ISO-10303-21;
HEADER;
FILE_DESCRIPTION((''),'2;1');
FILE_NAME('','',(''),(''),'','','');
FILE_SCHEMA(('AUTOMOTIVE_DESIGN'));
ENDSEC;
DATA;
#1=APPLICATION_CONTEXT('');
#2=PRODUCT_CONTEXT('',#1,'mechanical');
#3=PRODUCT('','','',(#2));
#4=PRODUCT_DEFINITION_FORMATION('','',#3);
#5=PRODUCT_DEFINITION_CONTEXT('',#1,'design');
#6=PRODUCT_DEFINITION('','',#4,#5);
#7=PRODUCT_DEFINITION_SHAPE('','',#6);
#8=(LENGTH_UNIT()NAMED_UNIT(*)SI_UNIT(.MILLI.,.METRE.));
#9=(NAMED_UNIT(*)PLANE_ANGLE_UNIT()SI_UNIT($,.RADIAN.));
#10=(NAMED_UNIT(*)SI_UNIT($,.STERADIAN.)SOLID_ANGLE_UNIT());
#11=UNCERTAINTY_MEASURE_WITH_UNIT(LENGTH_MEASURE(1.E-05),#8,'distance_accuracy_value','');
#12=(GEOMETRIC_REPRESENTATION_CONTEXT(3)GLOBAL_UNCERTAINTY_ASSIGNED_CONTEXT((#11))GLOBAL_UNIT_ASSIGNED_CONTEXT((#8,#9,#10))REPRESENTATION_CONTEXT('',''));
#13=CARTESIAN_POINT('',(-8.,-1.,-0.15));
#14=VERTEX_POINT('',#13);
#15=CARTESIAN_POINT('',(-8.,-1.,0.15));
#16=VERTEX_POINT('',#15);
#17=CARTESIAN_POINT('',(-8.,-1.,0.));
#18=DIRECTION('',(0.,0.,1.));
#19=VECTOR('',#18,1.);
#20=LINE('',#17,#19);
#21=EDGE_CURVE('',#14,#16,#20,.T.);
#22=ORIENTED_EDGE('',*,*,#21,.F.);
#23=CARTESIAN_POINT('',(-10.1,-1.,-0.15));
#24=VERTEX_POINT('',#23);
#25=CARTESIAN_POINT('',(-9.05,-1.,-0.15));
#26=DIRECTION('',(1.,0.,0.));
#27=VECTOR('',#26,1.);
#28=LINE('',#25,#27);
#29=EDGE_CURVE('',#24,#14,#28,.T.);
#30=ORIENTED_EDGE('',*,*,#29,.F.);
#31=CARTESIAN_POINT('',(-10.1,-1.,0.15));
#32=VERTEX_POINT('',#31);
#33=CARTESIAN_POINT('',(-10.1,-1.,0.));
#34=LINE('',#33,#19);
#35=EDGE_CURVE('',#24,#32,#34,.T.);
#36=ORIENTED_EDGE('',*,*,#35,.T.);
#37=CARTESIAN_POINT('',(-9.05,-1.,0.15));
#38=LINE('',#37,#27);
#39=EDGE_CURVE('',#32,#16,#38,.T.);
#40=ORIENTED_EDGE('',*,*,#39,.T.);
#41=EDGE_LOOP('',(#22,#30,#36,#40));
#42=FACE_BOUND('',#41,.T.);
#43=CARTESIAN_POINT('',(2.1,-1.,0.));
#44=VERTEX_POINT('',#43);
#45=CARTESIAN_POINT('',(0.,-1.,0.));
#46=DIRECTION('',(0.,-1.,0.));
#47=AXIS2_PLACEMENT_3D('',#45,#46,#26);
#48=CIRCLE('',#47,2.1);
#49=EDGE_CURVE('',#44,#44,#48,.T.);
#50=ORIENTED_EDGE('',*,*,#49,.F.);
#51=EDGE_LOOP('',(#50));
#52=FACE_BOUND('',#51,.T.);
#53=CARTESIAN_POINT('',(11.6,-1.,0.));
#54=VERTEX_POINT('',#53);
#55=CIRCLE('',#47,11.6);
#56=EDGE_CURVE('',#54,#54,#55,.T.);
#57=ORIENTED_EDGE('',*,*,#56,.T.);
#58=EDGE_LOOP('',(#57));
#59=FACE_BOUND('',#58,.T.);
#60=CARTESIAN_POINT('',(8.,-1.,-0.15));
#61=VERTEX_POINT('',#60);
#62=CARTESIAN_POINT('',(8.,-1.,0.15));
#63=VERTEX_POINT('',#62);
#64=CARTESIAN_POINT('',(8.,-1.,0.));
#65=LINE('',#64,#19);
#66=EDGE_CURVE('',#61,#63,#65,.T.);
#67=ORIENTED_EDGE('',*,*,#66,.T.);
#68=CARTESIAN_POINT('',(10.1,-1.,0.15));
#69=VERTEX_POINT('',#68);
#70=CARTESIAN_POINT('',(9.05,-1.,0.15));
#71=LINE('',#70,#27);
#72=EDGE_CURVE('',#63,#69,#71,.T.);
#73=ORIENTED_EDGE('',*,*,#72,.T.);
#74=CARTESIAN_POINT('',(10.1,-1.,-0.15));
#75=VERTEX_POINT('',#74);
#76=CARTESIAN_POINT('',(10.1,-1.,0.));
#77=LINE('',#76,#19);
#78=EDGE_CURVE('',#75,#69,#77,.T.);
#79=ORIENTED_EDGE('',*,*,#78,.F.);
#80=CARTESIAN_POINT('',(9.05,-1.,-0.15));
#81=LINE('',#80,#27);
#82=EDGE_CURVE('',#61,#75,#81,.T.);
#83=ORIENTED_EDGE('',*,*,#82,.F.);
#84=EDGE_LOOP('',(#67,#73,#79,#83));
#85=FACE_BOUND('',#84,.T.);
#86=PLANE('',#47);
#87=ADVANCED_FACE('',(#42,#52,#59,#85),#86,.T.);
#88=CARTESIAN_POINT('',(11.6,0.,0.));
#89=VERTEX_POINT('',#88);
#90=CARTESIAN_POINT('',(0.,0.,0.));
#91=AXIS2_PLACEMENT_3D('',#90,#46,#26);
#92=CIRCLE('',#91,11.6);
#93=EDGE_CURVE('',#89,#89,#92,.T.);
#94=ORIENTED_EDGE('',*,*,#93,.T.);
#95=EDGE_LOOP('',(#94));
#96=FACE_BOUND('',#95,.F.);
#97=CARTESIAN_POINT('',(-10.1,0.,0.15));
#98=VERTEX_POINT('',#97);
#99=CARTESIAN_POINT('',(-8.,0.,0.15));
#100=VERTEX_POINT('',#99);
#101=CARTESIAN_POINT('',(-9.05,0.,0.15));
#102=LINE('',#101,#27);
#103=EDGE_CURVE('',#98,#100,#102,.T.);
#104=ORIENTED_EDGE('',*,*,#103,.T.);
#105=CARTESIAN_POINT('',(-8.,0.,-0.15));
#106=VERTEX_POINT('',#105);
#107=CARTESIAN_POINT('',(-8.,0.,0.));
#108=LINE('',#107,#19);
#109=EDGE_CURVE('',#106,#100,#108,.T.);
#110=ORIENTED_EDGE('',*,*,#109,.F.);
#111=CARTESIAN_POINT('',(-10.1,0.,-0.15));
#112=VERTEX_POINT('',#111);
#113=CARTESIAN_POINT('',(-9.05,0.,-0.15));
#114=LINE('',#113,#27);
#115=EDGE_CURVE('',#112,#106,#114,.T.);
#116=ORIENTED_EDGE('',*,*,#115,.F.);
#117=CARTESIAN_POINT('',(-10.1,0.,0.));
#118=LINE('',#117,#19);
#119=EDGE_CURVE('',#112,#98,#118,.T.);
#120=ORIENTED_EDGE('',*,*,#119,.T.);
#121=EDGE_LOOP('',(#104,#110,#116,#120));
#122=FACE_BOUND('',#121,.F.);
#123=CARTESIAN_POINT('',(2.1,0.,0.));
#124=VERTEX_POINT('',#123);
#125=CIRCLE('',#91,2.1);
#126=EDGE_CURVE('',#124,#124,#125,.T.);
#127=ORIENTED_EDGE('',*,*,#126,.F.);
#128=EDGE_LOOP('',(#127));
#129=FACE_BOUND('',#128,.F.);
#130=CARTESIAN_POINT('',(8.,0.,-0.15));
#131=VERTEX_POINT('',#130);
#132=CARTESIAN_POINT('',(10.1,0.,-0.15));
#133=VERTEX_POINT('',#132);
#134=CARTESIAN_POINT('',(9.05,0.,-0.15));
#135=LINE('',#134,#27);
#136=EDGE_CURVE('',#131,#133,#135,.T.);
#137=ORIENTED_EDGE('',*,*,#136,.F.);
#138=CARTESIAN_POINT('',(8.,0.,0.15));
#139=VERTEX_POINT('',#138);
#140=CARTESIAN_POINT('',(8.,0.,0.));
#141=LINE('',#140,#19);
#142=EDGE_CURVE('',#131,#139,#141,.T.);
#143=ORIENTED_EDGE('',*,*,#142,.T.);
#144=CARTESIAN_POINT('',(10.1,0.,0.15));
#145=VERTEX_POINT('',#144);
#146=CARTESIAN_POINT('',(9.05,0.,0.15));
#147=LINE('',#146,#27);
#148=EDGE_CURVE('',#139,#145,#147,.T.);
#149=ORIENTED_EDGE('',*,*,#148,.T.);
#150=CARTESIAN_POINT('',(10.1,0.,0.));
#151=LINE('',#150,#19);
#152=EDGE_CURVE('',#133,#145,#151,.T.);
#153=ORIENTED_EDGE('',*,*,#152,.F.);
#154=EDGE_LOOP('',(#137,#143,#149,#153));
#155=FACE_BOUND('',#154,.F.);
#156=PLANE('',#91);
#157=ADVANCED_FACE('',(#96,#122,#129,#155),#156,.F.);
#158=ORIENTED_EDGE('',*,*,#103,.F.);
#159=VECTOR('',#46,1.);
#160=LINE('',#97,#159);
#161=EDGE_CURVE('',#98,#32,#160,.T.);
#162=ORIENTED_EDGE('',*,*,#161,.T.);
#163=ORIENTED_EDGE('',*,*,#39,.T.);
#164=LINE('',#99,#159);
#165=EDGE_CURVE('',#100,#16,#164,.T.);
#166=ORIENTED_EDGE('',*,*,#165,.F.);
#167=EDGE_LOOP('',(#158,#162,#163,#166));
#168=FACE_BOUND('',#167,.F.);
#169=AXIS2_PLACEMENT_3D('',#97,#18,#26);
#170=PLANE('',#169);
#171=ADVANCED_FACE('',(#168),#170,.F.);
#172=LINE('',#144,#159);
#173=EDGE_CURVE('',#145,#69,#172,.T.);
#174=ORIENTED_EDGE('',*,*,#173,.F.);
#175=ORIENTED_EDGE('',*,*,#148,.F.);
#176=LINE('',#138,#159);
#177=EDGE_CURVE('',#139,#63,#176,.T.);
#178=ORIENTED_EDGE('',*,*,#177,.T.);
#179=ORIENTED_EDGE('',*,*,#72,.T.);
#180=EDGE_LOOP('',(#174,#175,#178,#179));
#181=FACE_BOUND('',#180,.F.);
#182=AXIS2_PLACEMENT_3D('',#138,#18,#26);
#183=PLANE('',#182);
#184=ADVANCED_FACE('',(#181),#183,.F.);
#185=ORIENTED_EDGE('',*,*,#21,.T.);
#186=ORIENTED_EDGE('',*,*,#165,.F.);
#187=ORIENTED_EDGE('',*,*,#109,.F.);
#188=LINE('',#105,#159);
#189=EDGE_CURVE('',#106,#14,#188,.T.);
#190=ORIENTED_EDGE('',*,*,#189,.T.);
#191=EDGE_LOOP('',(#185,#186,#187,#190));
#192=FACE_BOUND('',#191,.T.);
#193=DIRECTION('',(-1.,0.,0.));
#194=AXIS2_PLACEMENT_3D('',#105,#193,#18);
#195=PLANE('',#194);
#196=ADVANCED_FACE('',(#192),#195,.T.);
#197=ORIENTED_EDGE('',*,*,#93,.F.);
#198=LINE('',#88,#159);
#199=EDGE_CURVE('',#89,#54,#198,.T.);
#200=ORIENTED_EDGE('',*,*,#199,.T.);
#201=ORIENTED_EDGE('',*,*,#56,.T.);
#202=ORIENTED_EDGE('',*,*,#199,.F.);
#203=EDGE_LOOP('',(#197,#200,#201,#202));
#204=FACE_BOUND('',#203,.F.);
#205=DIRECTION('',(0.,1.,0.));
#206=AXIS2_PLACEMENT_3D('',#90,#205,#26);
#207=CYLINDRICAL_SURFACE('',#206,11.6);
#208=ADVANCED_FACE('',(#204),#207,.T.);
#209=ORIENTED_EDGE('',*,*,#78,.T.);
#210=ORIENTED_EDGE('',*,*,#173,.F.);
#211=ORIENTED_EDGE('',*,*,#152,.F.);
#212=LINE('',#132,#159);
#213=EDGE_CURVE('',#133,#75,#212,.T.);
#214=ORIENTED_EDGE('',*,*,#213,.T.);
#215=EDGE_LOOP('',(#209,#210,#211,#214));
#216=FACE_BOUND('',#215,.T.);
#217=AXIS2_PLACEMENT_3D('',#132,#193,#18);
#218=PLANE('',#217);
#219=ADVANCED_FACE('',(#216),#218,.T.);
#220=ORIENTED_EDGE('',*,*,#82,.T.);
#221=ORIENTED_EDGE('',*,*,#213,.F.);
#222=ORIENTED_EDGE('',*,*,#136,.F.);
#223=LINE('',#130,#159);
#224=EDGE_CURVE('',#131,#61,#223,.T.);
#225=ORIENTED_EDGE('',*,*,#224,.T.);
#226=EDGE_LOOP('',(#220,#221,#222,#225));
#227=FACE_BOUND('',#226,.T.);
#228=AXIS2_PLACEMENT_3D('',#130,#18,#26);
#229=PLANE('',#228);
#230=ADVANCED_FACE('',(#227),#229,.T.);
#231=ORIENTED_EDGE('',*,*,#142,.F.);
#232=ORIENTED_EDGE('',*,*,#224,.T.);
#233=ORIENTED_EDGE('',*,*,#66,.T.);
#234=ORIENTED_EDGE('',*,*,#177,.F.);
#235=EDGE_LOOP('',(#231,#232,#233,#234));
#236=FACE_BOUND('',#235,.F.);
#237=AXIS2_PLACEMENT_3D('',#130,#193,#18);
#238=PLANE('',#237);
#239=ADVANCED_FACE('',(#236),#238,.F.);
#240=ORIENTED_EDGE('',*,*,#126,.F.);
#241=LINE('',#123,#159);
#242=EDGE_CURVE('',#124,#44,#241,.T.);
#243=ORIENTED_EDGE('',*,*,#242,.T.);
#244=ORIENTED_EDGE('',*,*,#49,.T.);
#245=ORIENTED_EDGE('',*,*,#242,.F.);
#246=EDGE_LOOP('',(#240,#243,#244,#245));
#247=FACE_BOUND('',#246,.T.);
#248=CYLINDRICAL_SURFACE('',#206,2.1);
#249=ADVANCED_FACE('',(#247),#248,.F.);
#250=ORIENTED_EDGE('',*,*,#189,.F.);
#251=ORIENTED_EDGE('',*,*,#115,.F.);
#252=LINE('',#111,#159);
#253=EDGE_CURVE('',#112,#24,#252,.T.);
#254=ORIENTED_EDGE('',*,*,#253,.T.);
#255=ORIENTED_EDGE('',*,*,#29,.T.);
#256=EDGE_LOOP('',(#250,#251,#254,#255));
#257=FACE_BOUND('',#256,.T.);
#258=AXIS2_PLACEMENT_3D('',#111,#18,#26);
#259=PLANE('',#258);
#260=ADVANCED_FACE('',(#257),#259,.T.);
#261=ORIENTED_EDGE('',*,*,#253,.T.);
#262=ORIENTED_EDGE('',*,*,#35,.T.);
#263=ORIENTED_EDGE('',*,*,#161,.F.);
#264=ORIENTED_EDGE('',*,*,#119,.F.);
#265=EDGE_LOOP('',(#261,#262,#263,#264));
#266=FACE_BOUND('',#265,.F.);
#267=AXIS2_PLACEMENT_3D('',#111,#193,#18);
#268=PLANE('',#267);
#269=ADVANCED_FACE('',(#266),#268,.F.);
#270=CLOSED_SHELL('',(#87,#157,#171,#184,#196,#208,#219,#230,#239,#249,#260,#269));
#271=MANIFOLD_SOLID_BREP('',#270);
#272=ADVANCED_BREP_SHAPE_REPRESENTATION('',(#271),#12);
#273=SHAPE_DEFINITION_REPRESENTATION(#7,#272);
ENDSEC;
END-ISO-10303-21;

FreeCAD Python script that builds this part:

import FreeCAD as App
import Part
import Sketcher
Q = App.Units.Quantity


def add_polygon(sketch, points):
    """Adds a closed chain of lines whose ends are joined by coincident constraints."""
    first, n = sketch.GeometryCount, len(points)
    for a, b in zip(points, points[1:] + points[:1]):
        sketch.addGeometry(Part.LineSegment(App.Vector(*a, 0), App.Vector(*b, 0)), False)
    for i in range(n):
        sketch.addConstraint(Sketcher.Constraint("Coincident", first + i, 2, first + (i + 1) % n, 1))

doc = App.newDocument("Part")
body = doc.addObject("PartDesign::Body", "Body")

sketch1 = body.newObject("Sketcher::SketchObject", "Sketch")
sketch1.AttachmentSupport = (doc.getObject("XZ_Plane"), [""])
sketch1.MapMode = "FlatFace"
sketch1.addGeometry(Part.Circle(App.Vector(0, 0, 0), App.Vector(0, 0, 1), 11.6), False)
add_polygon(sketch1, [(-8, -0.15), (-10.1, -0.15), (-10.1, 0.15), (-8, 0.15)])
sketch1.addGeometry(Part.Circle(App.Vector(0, 0, 0), App.Vector(0, 0, 1), 2.1), False)
add_polygon(sketch1, [(10.1, -0.15), (8, -0.15), (8, 0.15), (10.1, 0.15)])
sketch1.addConstraint([
    Sketcher.Constraint("Horizontal", 1),
    Sketcher.Constraint("Vertical", 2),
    Sketcher.Constraint("Horizontal", 3),
    Sketcher.Constraint("Vertical", 4),
    Sketcher.Constraint("Horizontal", 6),
    Sketcher.Constraint("Vertical", 7),
    Sketcher.Constraint("Horizontal", 8),
    Sketcher.Constraint("Vertical", 9),
    Sketcher.Constraint("Coincident", 0, 3, -1, 1),
    Sketcher.Constraint("Coincident", 5, 3, -1, 1),
    Sketcher.Constraint("Symmetric", 3, 2, 6, 2, -1, 1),
    Sketcher.Constraint("Symmetric", 1, 2, 8, 2, -1, 1),
    Sketcher.Constraint("Horizontal", 4, 2, 6, 2),
    Sketcher.Constraint("Diameter", 0, Q("23.2 mm")),
    Sketcher.Constraint("Diameter", 5, Q("4.2 mm")),
    Sketcher.Constraint("DistanceX", 1, 2, 1, 1, Q("2.1 mm")),
    Sketcher.Constraint("DistanceY", 2, 1, 2, 2, Q("0.3 mm")),
    Sketcher.Constraint("DistanceX", 3, 2, -1, 1, Q("8 mm")),
])
pad1 = body.newObject("PartDesign::Pad", "Pad")
pad1.Profile = sketch1
pad1.Length = 1

doc.recompute()
